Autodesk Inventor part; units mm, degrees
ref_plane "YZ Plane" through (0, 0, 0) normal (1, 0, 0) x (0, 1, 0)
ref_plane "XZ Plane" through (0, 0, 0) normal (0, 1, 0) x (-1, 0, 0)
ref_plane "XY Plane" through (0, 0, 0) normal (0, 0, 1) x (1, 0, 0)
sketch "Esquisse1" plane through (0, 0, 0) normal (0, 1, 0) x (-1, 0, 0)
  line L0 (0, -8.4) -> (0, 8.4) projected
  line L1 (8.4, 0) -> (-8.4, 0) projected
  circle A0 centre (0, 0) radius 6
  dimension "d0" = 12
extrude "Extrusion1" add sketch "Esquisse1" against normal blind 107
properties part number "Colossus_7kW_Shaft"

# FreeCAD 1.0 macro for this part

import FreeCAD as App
import Part
import Sketcher
Q = App.Units.Quantity

doc = App.newDocument("Part")
body = doc.addObject("PartDesign::Body", "Body")

# Sketch on XZ plane
sketch1 = body.newObject("Sketcher::SketchObject", "Sketch")
sketch1.AttachmentSupport = (doc.getObject("XZ_Plane"), [""])
sketch1.MapMode = "FlatFace"
sketch1.addGeometry(Part.Circle(App.Vector(0, 0, 0), App.Vector(0, 0, 1), 6), False)
sketch1.addConstraint([
    Sketcher.Constraint("Coincident", 0, 3, -1, 1),
    Sketcher.Constraint("Diameter", 0, Q("12 mm")),
])
pad1 = body.newObject("PartDesign::Pad", "Pad")
pad1.Profile = sketch1
pad1.Length = 107

doc.recompute()
